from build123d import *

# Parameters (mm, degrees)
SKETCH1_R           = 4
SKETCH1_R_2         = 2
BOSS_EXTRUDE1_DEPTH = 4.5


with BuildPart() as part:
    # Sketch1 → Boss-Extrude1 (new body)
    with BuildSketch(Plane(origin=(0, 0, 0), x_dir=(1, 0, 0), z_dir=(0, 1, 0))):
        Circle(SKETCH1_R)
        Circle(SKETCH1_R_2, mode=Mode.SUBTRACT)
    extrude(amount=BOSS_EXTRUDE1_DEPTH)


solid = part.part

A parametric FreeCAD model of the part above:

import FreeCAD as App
import Part
import Sketcher
from FreeCAD import Vector

doc = App.newDocument("Part")
params = doc.addObject("Spreadsheet::Sheet", "Params")
for row, (alias, value) in enumerate([
    ("sketch1_diameter", "8 mm"),
    ("sketch1_diameter2", "4 mm"),
    ("pad1_length", "4.5 mm"),
], start=1):
    params.set(f"A{row}", alias)
    params.set(f"B{row}", "=" + value)
    params.setAlias(f"B{row}", alias)

body = doc.addObject("PartDesign::Body", "Body")

sketch1 = body.newObject("Sketcher::SketchObject", "Sketch")
sketch1.AttachmentSupport = (doc.getObject("XZ_Plane"), [""])
sketch1.MapMode = "FlatFace"
sketch1.addGeometry(Part.Circle(Vector(0, 0, 0), Vector(0, 0, 1), 4), False)
sketch1.addGeometry(Part.Circle(Vector(0, 0, 0), Vector(0, 0, 1), 2), False)
sketch1.addConstraint(Sketcher.Constraint("Coincident", 0, 3, -1, 1))
sketch1.addConstraint(Sketcher.Constraint("Coincident", 1, 3, -1, 1))
sketch1.addConstraint(Sketcher.Constraint("Diameter", 0, 8.0))
sketch1.addConstraint(Sketcher.Constraint("Diameter", 1, 4.0))
sketch1.setExpression("Constraints[2]", "Params.sketch1_diameter")
sketch1.setExpression("Constraints[3]", "Params.sketch1_diameter2")
pad1 = body.newObject("PartDesign::Pad", "Pad")
pad1.Profile = sketch1
pad1.setExpression("Length", "Params.pad1_length")
pad1.Reversed = True

doc.recompute()
